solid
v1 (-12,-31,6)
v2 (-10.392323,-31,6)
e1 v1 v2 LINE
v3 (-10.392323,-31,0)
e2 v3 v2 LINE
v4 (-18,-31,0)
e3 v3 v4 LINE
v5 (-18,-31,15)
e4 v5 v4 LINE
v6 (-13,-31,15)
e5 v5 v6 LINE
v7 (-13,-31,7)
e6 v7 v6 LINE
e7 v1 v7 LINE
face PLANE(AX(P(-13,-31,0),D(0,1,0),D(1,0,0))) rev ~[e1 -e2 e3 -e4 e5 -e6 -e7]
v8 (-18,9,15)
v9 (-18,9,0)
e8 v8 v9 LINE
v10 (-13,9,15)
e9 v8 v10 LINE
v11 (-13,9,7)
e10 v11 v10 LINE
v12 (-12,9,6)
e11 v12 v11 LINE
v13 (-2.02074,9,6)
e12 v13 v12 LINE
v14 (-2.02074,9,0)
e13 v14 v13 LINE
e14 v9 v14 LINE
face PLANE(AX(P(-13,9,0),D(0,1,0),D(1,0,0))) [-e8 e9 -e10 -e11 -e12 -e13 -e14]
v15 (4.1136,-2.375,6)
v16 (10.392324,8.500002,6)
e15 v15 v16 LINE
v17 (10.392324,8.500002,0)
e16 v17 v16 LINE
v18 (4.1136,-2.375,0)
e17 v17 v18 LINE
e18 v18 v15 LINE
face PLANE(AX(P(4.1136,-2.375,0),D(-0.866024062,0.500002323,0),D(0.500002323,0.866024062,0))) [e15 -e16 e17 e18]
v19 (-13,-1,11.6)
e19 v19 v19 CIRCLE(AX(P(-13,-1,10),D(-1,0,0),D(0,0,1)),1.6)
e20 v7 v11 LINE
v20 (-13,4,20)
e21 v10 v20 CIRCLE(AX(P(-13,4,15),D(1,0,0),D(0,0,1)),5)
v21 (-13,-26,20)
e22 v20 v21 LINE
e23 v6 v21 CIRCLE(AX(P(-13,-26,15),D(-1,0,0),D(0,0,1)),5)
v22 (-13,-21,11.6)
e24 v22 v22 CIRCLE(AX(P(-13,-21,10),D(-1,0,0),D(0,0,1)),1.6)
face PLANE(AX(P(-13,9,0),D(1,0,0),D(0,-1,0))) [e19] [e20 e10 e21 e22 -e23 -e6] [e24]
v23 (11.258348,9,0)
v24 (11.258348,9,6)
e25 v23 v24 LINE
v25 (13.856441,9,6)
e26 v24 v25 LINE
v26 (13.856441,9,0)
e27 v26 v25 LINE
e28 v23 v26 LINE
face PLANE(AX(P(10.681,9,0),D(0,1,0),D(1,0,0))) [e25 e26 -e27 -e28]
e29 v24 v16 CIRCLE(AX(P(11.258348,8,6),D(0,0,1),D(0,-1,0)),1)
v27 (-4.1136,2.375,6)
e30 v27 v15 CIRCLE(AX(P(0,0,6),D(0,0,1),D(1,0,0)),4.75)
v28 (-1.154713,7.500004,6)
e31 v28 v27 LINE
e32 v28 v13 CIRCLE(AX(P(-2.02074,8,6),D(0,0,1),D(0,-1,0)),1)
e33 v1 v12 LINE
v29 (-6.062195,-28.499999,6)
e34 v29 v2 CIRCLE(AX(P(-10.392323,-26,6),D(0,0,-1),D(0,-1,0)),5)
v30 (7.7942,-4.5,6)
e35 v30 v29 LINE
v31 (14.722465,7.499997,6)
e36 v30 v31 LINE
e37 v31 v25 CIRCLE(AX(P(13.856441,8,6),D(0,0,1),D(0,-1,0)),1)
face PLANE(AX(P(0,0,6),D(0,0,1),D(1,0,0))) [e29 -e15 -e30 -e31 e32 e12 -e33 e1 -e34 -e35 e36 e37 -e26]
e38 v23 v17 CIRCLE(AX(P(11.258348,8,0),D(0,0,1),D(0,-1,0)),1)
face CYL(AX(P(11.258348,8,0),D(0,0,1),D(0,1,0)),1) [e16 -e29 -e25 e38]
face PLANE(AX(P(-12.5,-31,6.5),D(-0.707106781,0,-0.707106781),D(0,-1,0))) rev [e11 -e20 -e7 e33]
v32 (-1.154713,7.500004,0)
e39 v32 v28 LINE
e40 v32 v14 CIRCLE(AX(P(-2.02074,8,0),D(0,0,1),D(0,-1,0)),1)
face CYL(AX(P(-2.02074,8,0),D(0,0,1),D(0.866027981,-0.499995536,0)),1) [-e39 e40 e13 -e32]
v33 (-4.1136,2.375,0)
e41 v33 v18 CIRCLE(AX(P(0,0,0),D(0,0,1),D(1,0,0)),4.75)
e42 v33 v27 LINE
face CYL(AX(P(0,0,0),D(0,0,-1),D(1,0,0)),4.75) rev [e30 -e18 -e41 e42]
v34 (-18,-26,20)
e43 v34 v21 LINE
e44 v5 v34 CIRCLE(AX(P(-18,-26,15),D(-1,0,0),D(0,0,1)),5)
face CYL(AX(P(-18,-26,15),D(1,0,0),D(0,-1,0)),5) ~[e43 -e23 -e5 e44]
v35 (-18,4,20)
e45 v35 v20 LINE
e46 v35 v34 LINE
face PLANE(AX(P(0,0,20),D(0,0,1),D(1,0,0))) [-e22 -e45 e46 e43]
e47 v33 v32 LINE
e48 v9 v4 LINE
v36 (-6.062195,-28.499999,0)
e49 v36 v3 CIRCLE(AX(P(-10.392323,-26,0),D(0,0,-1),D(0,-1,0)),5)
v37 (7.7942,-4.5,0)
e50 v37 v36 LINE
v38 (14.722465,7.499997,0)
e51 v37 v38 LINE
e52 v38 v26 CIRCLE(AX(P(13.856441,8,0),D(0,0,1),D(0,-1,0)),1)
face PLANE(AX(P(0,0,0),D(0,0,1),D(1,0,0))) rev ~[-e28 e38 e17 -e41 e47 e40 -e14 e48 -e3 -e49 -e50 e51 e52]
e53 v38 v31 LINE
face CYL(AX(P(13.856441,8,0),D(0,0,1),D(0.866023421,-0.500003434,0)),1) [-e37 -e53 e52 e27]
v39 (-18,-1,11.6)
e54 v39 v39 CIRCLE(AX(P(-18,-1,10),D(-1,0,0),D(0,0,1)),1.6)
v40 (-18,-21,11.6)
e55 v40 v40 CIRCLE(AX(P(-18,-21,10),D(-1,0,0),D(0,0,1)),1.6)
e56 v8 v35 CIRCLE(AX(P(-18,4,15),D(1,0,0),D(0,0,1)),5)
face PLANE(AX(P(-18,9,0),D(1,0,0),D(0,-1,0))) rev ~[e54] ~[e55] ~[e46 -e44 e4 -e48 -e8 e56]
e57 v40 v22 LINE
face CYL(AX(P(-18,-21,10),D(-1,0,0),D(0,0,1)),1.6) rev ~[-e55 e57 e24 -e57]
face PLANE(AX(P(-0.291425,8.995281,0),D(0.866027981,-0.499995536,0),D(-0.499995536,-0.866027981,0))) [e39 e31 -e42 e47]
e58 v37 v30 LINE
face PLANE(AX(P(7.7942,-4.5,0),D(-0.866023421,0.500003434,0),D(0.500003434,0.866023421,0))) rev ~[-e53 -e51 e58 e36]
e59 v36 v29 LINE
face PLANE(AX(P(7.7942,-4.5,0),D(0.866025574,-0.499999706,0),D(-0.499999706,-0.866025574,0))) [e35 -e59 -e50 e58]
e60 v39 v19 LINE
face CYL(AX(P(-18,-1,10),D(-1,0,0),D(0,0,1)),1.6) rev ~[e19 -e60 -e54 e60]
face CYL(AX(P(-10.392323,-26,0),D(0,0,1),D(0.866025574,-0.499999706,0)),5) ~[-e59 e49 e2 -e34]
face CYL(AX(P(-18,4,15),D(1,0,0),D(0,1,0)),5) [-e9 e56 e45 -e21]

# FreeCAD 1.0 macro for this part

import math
import FreeCAD as App
import Part
import Sketcher

V = App.Vector
Q = App.Units.Quantity


def edges_at(feature, points):
    """Names of the edges that pass closest to the given points."""
    edges = feature.Shape.Edges
    near = lambda p: min(range(len(edges)), key=lambda i: edges[i].distToShape(Part.Vertex(*p))[0])
    return sorted({f"Edge{near(p) + 1}" for p in points})

doc = App.newDocument("Part")
body = doc.addObject("PartDesign::Body", "Body")

# Sketch on XY plane
sketch1 = body.newObject("Sketcher::SketchObject", "Sketch")
sketch1.AttachmentSupport = (doc.getObject("XY_Plane"), [""])
sketch1.MapMode = "FlatFace"
sketch1.addGeometry([
    Part.ArcOfCircle(Part.Circle(V(0, 0, 0), V(0, 0, 1), 4.8), math.radians(150), math.radians(330)),  # 0
    Part.LineSegment(V(-4.1, 2.4, 0), V(-0.3, 9, 0)),  # 1
    Part.LineSegment(V(-0.3, 9, 0), V(-18, 9, 0)),  # 2
    Part.LineSegment(V(-18, 9, 0), V(-18, -31, 0)),  # 3
    Part.LineSegment(V(-18, -31, 0), V(-7.5, -31, 0)),  # 4
    Part.LineSegment(V(-7.5, -31, 0), V(7.8, -4.5, 0)),  # 5
    Part.LineSegment(V(7.8, -4.5, 0), V(15.6, 9, 0)),  # 6
    Part.LineSegment(V(15.6, 9, 0), V(10.7, 9, 0)),  # 7
    Part.LineSegment(V(10.7, 9, 0), V(4.1, -2.4, 0)),  # 8
], False)
sketch1.addConstraint([
    Sketcher.Constraint("Tangent", 0, 1, 1, 1),
    Sketcher.Constraint("Coincident", 1, 2, 2, 1),
    Sketcher.Constraint("Coincident", 2, 2, 3, 1),
    Sketcher.Constraint("Coincident", 3, 2, 4, 1),
    Sketcher.Constraint("Coincident", 4, 2, 5, 1),
    Sketcher.Constraint("Coincident", 5, 2, 6, 1),
    Sketcher.Constraint("Coincident", 6, 2, 7, 1),
    Sketcher.Constraint("Coincident", 7, 2, 8, 1),
    Sketcher.Constraint("Tangent", 8, 2, 0, 2),
    Sketcher.Constraint("Horizontal", 2),
    Sketcher.Constraint("Vertical", 3),
    Sketcher.Constraint("Horizontal", 4),
    Sketcher.Constraint("Horizontal", 7),
    Sketcher.Constraint("Coincident", 0, 3, -1, 1),
    Sketcher.Constraint("Parallel", 1, 5),
    Sketcher.Constraint("Parallel", 5, 6),
    Sketcher.Constraint("Parallel", 6, 8),
    Sketcher.Constraint("Horizontal", 2, 2, 6, 2),
    Sketcher.Constraint("DistanceY", 3, 2, 3, 1, Q("40 mm")),
    Sketcher.Constraint("Angle", 1, Q("60.0003 deg")),
    Sketcher.Constraint("Radius", 0, Q("4.75 mm")),
    Sketcher.Constraint("DistanceX", 2, 2, -1, 1, Q("18 mm")),
    Sketcher.Constraint("DistanceY", -1, 1, 1, 2, Q("9 mm")),
    Sketcher.Constraint("DistanceY", 5, 2, -1, 1, Q("4.5 mm")),
    Sketcher.Constraint("DistanceX", 4, 1, 4, 2, Q("10.4944 mm")),
])
pad1 = body.newObject("PartDesign::Pad", "Pad")
pad1.Profile = sketch1
pad1.Length = 6

# Sketch on XY plane
sketch2 = body.newObject("Sketcher::SketchObject", "Sketch001")
sketch2.AttachmentSupport = (doc.getObject("XY_Plane"), [""])
sketch2.MapMode = "FlatFace"
sketch2.addGeometry([
    Part.LineSegment(V(-13, -31, 0), V(-13, 9, 0)),
    Part.LineSegment(V(-13, 9, 0), V(-18, 9, 0)),
    Part.LineSegment(V(-18, 9, 0), V(-18, -31, 0)),
    Part.LineSegment(V(-18, -31, 0), V(-13, -31, 0)),
], False)
sketch2.addConstraint([
    Sketcher.Constraint("Coincident", 0, 2, 1, 1),
    Sketcher.Constraint("Coincident", 1, 2, 2, 1),
    Sketcher.Constraint("Coincident", 2, 2, 3, 1),
    Sketcher.Constraint("Coincident", 3, 2, 0, 1),
    Sketcher.Constraint("Vertical", 0),
    Sketcher.Constraint("Horizontal", 1),
    Sketcher.Constraint("Vertical", 2),
    Sketcher.Constraint("Horizontal", 3),
    Sketcher.Constraint("DistanceX", 1, 2, 1, 1, Q("5 mm")),
    Sketcher.Constraint("DistanceY", 0, 1, 0, 2, Q("40 mm")),
    Sketcher.Constraint("DistanceX", 1, 2, -1, 1, Q("18 mm")),
    Sketcher.Constraint("DistanceY", -1, 1, 0, 2, Q("9 mm")),
])
pad2 = body.newObject("PartDesign::Pad", "Pad001")
pad2.Profile = sketch2
pad2.Length = 20

# Sketch on YZ plane
sketch3 = body.newObject("Sketcher::SketchObject", "Sketch002")
sketch3.AttachmentSupport = (doc.getObject("YZ_Plane"), [""])
sketch3.MapMode = "FlatFace"
sketch3.AttachmentOffset = App.Placement(V(0, 0, -18), App.Rotation())
sketch3.addGeometry([
    Part.Circle(V(-1, 10, 0), V(0, 0, 1), 1.6),
    Part.Circle(V(-21, 10, 0), V(0, 0, 1), 1.6),
], False)
sketch3.addConstraint([
    Sketcher.Constraint("Equal", 0, 1),
    Sketcher.Constraint("Horizontal", 0, 3, 1, 3),
    Sketcher.Constraint("Diameter", 0, Q("3.2 mm")),
    Sketcher.Constraint("DistanceY", -1, 1, 0, 3, Q("10 mm")),
    Sketcher.Constraint("DistanceX", 0, 3, -1, 1, Q("1 mm")),
    Sketcher.Constraint("DistanceX", 1, 3, -1, 1, Q("21 mm")),
])
pocket1 = body.newObject("PartDesign::Pocket", "Pocket")
pocket1.Profile = sketch3
pocket1.Length = 6
pocket1.Reversed = True
doc.recompute()

fillet = body.newObject("PartDesign::Fillet", "Fillet")
fillet.Base = (pocket1, edges_at(pocket1, [(15.588, 9, 3), (10.681, 9, 3), (-0.289, 9, 3)]))
fillet.Radius = 1
doc.recompute()

fillet2 = body.newObject("PartDesign::Fillet", "Fillet001")
fillet2.Base = (fillet, edges_at(fillet, [(-7.506, -31, 3), (-15.5, -31, 20), (-15.5, 9, 20)]))
fillet2.Radius = 5
doc.recompute()

chamfer = body.newObject("PartDesign::Chamfer", "Chamfer")
chamfer.Base = (fillet2, edges_at(fillet2, [(-13, -11, 6)]))
chamfer.Size = 1

doc.recompute()
